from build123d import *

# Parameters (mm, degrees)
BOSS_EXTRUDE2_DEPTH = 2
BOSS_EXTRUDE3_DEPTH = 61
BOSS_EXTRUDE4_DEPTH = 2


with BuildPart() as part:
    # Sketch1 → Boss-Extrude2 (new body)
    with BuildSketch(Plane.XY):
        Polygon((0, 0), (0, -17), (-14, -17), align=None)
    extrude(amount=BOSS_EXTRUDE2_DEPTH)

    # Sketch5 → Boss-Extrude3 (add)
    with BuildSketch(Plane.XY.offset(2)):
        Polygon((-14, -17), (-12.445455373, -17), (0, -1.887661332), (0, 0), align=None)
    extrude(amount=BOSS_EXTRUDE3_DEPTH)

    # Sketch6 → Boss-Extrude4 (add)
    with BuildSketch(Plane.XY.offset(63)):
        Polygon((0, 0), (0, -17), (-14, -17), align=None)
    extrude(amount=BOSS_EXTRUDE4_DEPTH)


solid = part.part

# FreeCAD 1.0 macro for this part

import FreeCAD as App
import Part
import Sketcher

V = App.Vector

doc = App.newDocument("Part")
body = doc.addObject("PartDesign::Body", "Body")

# Sketch on XY plane
sketch1 = doc.addObject("Sketcher::SketchObject", "Sketch")
body.addObject(sketch1)
sketch1.AttachmentSupport = (doc.XY_Plane, [""])
sketch1.MapMode = "FlatFace"
sketch1.addGeometry(Part.LineSegment(V(0, -17, 0), V(0, 0, 0)), False)
sketch1.addGeometry(Part.LineSegment(V(0, 0, 0), V(-14, -17, 0)), False)
sketch1.addGeometry(Part.LineSegment(V(-14, -17, 0), V(0, -17, 0)), False)
sketch1.addConstraint(Sketcher.Constraint("Coincident", 0, 2, 1, 1))
sketch1.addConstraint(Sketcher.Constraint("Coincident", 1, 2, 2, 1))
sketch1.addConstraint(Sketcher.Constraint("Coincident", 2, 2, 0, 1))
sketch1.addConstraint(Sketcher.Constraint("Vertical", 0))
sketch1.addConstraint(Sketcher.Constraint("Horizontal", 2))
sketch1.addConstraint(Sketcher.Constraint("Coincident", 0, 2, -1, 1))
sketch1.addConstraint(Sketcher.Constraint("DistanceX", 2, 1, 2, 2, 14.0))
sketch1.addConstraint(Sketcher.Constraint("DistanceY", 0, 1, 0, 2, 17.0))
pad1 = doc.addObject("PartDesign::Pad", "Pad")
body.addObject(pad1)
pad1.Profile = sketch1
pad1.Length = 2

# Sketch on XY plane
sketch2 = doc.addObject("Sketcher::SketchObject", "Sketch001")
body.addObject(sketch2)
sketch2.AttachmentSupport = (doc.XY_Plane, [""])
sketch2.MapMode = "FlatFace"
sketch2.AttachmentOffset = App.Placement(V(0, 0, 2), App.Rotation())
sketch2.addGeometry(Part.LineSegment(V(-14, -17, 0), V(-12.445455, -17, 0)), False)
sketch2.addGeometry(Part.LineSegment(V(-12.445455, -17, 0), V(0, -1.887661, 0)), False)
sketch2.addGeometry(Part.LineSegment(V(0, -1.887661, 0), V(0, 0, 0)), False)
sketch2.addGeometry(Part.LineSegment(V(0, 0, 0), V(-14, -17, 0)), False)
sketch2.addConstraint(Sketcher.Constraint("Coincident", 0, 2, 1, 1))
sketch2.addConstraint(Sketcher.Constraint("Coincident", 1, 2, 2, 1))
sketch2.addConstraint(Sketcher.Constraint("Coincident", 2, 2, 3, 1))
sketch2.addConstraint(Sketcher.Constraint("Coincident", 3, 2, 0, 1))
sketch2.addConstraint(Sketcher.Constraint("Horizontal", 0))
sketch2.addConstraint(Sketcher.Constraint("Vertical", 2))
sketch2.addConstraint(Sketcher.Constraint("Coincident", 2, 2, -1, 1))
sketch2.addConstraint(Sketcher.Constraint("Parallel", 1, 3))
sketch2.addConstraint(Sketcher.Constraint("DistanceY", 0, 2, -1, 1, 17.0))
sketch2.addConstraint(Sketcher.Constraint("DistanceX", 3, 2, -1, 1, 14.0))
sketch2.addConstraint(Sketcher.Constraint("DistanceY", 2, 1, 2, 2, 1.887661))
pad2 = doc.addObject("PartDesign::Pad", "Pad001")
body.addObject(pad2)
pad2.Profile = sketch2
pad2.Length = 61

# Sketch on XY plane
sketch3 = doc.addObject("Sketcher::SketchObject", "Sketch002")
body.addObject(sketch3)
sketch3.AttachmentSupport = (doc.XY_Plane, [""])
sketch3.MapMode = "FlatFace"
sketch3.AttachmentOffset = App.Placement(V(0, 0, 63), App.Rotation())
sketch3.addGeometry(Part.LineSegment(V(0, -17, 0), V(0, 0, 0)), False)
sketch3.addGeometry(Part.LineSegment(V(0, 0, 0), V(-14, -17, 0)), False)
sketch3.addGeometry(Part.LineSegment(V(-14, -17, 0), V(0, -17, 0)), False)
sketch3.addConstraint(Sketcher.Constraint("Coincident", 0, 2, 1, 1))
sketch3.addConstraint(Sketcher.Constraint("Coincident", 1, 2, 2, 1))
sketch3.addConstraint(Sketcher.Constraint("Coincident", 2, 2, 0, 1))
sketch3.addConstraint(Sketcher.Constraint("Vertical", 0))
sketch3.addConstraint(Sketcher.Constraint("Horizontal", 2))
sketch3.addConstraint(Sketcher.Constraint("Coincident", 0, 2, -1, 1))
sketch3.addConstraint(Sketcher.Constraint("DistanceX", 2, 1, 2, 2, 14.0))
sketch3.addConstraint(Sketcher.Constraint("DistanceY", 0, 1, 0, 2, 17.0))
pad3 = doc.addObject("PartDesign::Pad", "Pad002")
body.addObject(pad3)
pad3.Profile = sketch3
pad3.Length = 2

doc.recompute()
